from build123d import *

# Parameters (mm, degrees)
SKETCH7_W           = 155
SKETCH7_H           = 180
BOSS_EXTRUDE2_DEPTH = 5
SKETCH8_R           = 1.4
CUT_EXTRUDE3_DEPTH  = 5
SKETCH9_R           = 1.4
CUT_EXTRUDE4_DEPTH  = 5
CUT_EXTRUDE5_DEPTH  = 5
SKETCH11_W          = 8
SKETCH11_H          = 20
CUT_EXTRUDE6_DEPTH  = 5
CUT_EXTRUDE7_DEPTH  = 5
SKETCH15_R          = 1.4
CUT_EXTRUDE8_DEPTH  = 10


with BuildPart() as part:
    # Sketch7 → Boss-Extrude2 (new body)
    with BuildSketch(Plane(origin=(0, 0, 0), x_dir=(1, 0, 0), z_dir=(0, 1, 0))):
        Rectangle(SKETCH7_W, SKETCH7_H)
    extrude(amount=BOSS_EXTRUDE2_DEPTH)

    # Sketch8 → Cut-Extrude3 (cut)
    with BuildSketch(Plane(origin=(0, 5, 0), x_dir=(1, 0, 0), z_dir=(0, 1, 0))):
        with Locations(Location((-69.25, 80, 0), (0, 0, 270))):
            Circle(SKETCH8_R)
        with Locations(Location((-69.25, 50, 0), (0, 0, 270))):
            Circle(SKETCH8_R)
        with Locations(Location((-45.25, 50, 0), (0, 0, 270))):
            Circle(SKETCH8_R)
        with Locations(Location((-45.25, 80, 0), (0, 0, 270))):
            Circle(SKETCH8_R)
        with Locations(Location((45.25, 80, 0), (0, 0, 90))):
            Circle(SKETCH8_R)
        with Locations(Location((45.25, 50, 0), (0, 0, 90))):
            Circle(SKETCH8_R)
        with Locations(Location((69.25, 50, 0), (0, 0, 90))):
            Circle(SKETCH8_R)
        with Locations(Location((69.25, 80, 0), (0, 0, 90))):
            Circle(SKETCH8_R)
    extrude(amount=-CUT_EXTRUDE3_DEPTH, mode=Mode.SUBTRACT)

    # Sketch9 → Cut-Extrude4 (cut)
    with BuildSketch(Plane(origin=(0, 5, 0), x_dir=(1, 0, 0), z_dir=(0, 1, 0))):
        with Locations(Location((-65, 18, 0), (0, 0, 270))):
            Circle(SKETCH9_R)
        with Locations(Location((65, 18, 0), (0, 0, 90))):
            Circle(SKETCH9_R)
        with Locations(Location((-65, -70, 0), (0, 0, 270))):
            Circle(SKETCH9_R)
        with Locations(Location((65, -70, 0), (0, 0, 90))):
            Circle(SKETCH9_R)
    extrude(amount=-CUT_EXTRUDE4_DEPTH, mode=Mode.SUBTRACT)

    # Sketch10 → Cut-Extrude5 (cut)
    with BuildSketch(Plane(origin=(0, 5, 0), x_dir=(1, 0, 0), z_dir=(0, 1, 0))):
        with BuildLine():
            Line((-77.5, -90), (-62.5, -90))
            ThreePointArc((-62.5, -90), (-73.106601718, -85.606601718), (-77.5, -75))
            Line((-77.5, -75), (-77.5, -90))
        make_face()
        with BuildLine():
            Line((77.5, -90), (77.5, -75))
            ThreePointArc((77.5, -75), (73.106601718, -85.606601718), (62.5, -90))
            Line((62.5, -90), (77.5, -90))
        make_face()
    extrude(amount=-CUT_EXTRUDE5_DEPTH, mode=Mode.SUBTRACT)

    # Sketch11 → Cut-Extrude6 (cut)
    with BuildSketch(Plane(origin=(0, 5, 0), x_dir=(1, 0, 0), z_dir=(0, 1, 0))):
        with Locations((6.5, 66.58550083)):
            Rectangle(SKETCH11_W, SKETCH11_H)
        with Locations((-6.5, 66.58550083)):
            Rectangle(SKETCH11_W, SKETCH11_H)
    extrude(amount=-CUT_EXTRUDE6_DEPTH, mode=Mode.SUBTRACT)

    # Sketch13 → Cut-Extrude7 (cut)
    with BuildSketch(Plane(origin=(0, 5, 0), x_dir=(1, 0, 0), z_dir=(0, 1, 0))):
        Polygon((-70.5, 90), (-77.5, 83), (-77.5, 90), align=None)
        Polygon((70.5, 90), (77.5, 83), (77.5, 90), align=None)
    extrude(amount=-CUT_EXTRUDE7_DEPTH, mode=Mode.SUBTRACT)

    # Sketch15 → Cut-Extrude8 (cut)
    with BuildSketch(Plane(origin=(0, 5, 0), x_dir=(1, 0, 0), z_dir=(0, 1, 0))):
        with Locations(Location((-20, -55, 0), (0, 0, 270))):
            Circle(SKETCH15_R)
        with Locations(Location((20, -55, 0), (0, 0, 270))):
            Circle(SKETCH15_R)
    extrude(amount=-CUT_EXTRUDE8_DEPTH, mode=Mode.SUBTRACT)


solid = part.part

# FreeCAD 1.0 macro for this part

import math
import FreeCAD as App
import Part
import Sketcher

V = App.Vector

doc = App.newDocument("Part")
body = doc.addObject("PartDesign::Body", "Body")

sketch1 = body.newObject("Sketcher::SketchObject", "Sketch")
sketch1.AttachmentSupport = (doc.getObject("XZ_Plane"), [""])
sketch1.MapMode = "FlatFace"
sketch1.addGeometry([
    Part.LineSegment(V(-77.5, -90, 0), V(-77.5, 90, 0)),
    Part.LineSegment(V(-77.5, 90, 0), V(77.5, 90, 0)),
    Part.LineSegment(V(77.5, 90, 0), V(77.5, -90, 0)),
    Part.LineSegment(V(77.5, -90, 0), V(-77.5, -90, 0)),
], False)
sketch1.addConstraint([
    Sketcher.Constraint("Coincident", 0, 2, 1, 1),
    Sketcher.Constraint("Coincident", 1, 2, 2, 1),
    Sketcher.Constraint("Coincident", 2, 2, 3, 1),
    Sketcher.Constraint("Coincident", 3, 2, 0, 1),
    Sketcher.Constraint("Vertical", 0),
    Sketcher.Constraint("Horizontal", 1),
    Sketcher.Constraint("Vertical", 2),
    Sketcher.Constraint("Horizontal", 3),
    Sketcher.Constraint("Symmetric", 0, 2, 2, 2, -1, 1),
    Sketcher.Constraint("DistanceX", 1, 1, 1, 2, 155.0),
    Sketcher.Constraint("DistanceY", 0, 1, 0, 2, 180.0),
])
pad1 = body.newObject("PartDesign::Pad", "Pad")
pad1.Profile = sketch1
pad1.Length = 5
pad1.Reversed = True

sketch2 = body.newObject("Sketcher::SketchObject", "Sketch001")
sketch2.AttachmentSupport = (doc.getObject("XZ_Plane"), [""])
sketch2.MapMode = "FlatFace"
sketch2.AttachmentOffset = App.Placement(V(0, 0, -5), App.Rotation())
sketch2.addGeometry([
    Part.Circle(V(-69.25, -80, 0), V(0, 0, 1), 1.4),
    Part.Circle(V(-69.25, -50, 0), V(0, 0, 1), 1.4),
    Part.Circle(V(-45.25, -50, 0), V(0, 0, 1), 1.4),
    Part.Circle(V(-45.25, -80, 0), V(0, 0, 1), 1.4),
    Part.Circle(V(45.25, -80, 0), V(0, 0, 1), 1.4),
    Part.Circle(V(45.25, -50, 0), V(0, 0, 1), 1.4),
    Part.Circle(V(69.25, -50, 0), V(0, 0, 1), 1.4),
    Part.Circle(V(69.25, -80, 0), V(0, 0, 1), 1.4),
], False)
sketch2.addConstraint([
    Sketcher.Constraint("Equal", 0, 1),
    Sketcher.Constraint("Equal", 1, 2),
    Sketcher.Constraint("Equal", 2, 3),
    Sketcher.Constraint("Equal", 3, 4),
    Sketcher.Constraint("Equal", 4, 5),
    Sketcher.Constraint("Equal", 5, 6),
    Sketcher.Constraint("Equal", 6, 7),
    Sketcher.Constraint("Symmetric", 3, 3, 4, 3, -2),
    Sketcher.Constraint("Symmetric", 2, 3, 5, 3, -2),
    Sketcher.Constraint("Symmetric", 1, 3, 6, 3, -2),
    Sketcher.Constraint("Symmetric", 0, 3, 7, 3, -2),
    Sketcher.Constraint("Horizontal", 1, 3, 2, 3),
    Sketcher.Constraint("Horizontal", 0, 3, 3, 3),
    Sketcher.Constraint("Vertical", 0, 3, 1, 3),
    Sketcher.Constraint("Vertical", 2, 3, 3, 3),
    Sketcher.Constraint("Diameter", 0, 2.8),
    Sketcher.Constraint("DistanceY", 0, 3, -1, 1, 80.0),
    Sketcher.Constraint("DistanceY", 1, 3, -1, 1, 50.0),
    Sketcher.Constraint("DistanceX", 1, 3, 2, 3, 24.0),
    Sketcher.Constraint("DistanceX", 3, 3, 4, 3, 90.5),
])
pocket1 = body.newObject("PartDesign::Pocket", "Pocket")
pocket1.Profile = sketch2
pocket1.Length = 5
pocket1.Reversed = True

sketch3 = body.newObject("Sketcher::SketchObject", "Sketch002")
sketch3.AttachmentSupport = (doc.getObject("XZ_Plane"), [""])
sketch3.MapMode = "FlatFace"
sketch3.AttachmentOffset = App.Placement(V(0, 0, -5), App.Rotation())
sketch3.addGeometry([
    Part.Circle(V(-65, -18, 0), V(0, 0, 1), 1.4),
    Part.Circle(V(65, -18, 0), V(0, 0, 1), 1.4),
    Part.Circle(V(-65, 70, 0), V(0, 0, 1), 1.4),
    Part.Circle(V(65, 70, 0), V(0, 0, 1), 1.4),
], False)
sketch3.addConstraint([
    Sketcher.Constraint("Equal", 0, 1),
    Sketcher.Constraint("Equal", 1, 2),
    Sketcher.Constraint("Equal", 2, 3),
    Sketcher.Constraint("Symmetric", 0, 3, 1, 3, -2),
    Sketcher.Constraint("Symmetric", 2, 3, 3, 3, -2),
    Sketcher.Constraint("Vertical", 0, 3, 2, 3),
    Sketcher.Constraint("Diameter", 0, 2.8),
    Sketcher.Constraint("DistanceX", 0, 3, -1, 1, 65.0),
    Sketcher.Constraint("DistanceY", 0, 3, -1, 1, 18.0),
    Sketcher.Constraint("DistanceY", -1, 1, 2, 3, 70.0),
])
pocket2 = body.newObject("PartDesign::Pocket", "Pocket001")
pocket2.Profile = sketch3
pocket2.Length = 5
pocket2.Reversed = True

sketch4 = body.newObject("Sketcher::SketchObject", "Sketch003")
sketch4.AttachmentSupport = (doc.getObject("XZ_Plane"), [""])
sketch4.MapMode = "FlatFace"
sketch4.AttachmentOffset = App.Placement(V(0, 0, -5), App.Rotation())
sketch4.addGeometry([
    Part.LineSegment(V(-77.5, 90, 0), V(-62.5, 90, 0)),
    Part.ArcOfCircle(Part.Circle(V(-62.5, 75, 0), V(0, 0, 1), 15), math.radians(90), math.radians(180)),
    Part.LineSegment(V(-77.5, 75, 0), V(-77.5, 90, 0)),
    Part.LineSegment(V(77.5, 90, 0), V(77.5, 75, 0)),
    Part.ArcOfCircle(Part.Circle(V(62.5, 75, 0), V(0, 0, 1), 15), math.radians(0), math.radians(90)),
    Part.LineSegment(V(62.5, 90, 0), V(77.5, 90, 0)),
], False)
sketch4.addConstraint([
    Sketcher.Constraint("Tangent", 0, 2, 1, 1),
    Sketcher.Constraint("Tangent", 1, 2, 2, 1),
    Sketcher.Constraint("Coincident", 2, 2, 0, 1),
    Sketcher.Constraint("Tangent", 3, 2, 4, 1),
    Sketcher.Constraint("Tangent", 4, 2, 5, 1),
    Sketcher.Constraint("Coincident", 5, 2, 3, 1),
    Sketcher.Constraint("Horizontal", 0),
    Sketcher.Constraint("Vertical", 2),
    Sketcher.Constraint("Vertical", 3),
    Sketcher.Constraint("Horizontal", 5),
    Sketcher.Constraint("Equal", 1, 4),
    Sketcher.Constraint("Symmetric", 1, 3, 4, 3, -2),
    Sketcher.Constraint("Radius", 1, 15.0),
    Sketcher.Constraint("DistanceY", -1, 1, 1, 3, 75.0),
    Sketcher.Constraint("DistanceX", 1, 3, 4, 3, 125.0),
])
pocket3 = body.newObject("PartDesign::Pocket", "Pocket002")
pocket3.Profile = sketch4
pocket3.Length = 5
pocket3.Reversed = True

sketch5 = body.newObject("Sketcher::SketchObject", "Sketch004")
sketch5.AttachmentSupport = (doc.getObject("XZ_Plane"), [""])
sketch5.MapMode = "FlatFace"
sketch5.AttachmentOffset = App.Placement(V(0, 0, -5), App.Rotation())
sketch5.addGeometry([
    Part.LineSegment(V(2.5, -76.585501, 0), V(2.5, -56.585501, 0)),
    Part.LineSegment(V(2.5, -56.585501, 0), V(10.5, -56.585501, 0)),
    Part.LineSegment(V(10.5, -56.585501, 0), V(10.5, -76.585501, 0)),
    Part.LineSegment(V(10.5, -76.585501, 0), V(2.5, -76.585501, 0)),
    Part.LineSegment(V(-10.5, -76.585501, 0), V(-10.5, -56.585501, 0)),
    Part.LineSegment(V(-10.5, -56.585501, 0), V(-2.5, -56.585501, 0)),
    Part.LineSegment(V(-2.5, -56.585501, 0), V(-2.5, -76.585501, 0)),
    Part.LineSegment(V(-2.5, -76.585501, 0), V(-10.5, -76.585501, 0)),
], False)
sketch5.addConstraint([
    Sketcher.Constraint("Coincident", 0, 2, 1, 1),
    Sketcher.Constraint("Coincident", 1, 2, 2, 1),
    Sketcher.Constraint("Coincident", 2, 2, 3, 1),
    Sketcher.Constraint("Coincident", 3, 2, 0, 1),
    Sketcher.Constraint("Coincident", 4, 2, 5, 1),
    Sketcher.Constraint("Coincident", 5, 2, 6, 1),
    Sketcher.Constraint("Coincident", 6, 2, 7, 1),
    Sketcher.Constraint("Coincident", 7, 2, 4, 1),
    Sketcher.Constraint("Vertical", 0),
    Sketcher.Constraint("Horizontal", 1),
    Sketcher.Constraint("Vertical", 2),
    Sketcher.Constraint("Horizontal", 3),
    Sketcher.Constraint("Vertical", 4),
    Sketcher.Constraint("Horizontal", 5),
    Sketcher.Constraint("Vertical", 6),
    Sketcher.Constraint("Horizontal", 7),
    Sketcher.Constraint("Symmetric", 1, 2, 4, 2, -2),
    Sketcher.Constraint("Symmetric", 3, 2, 6, 2, -2),
    Sketcher.Constraint("DistanceX", 1, 1, 1, 2, 8.0),
    Sketcher.Constraint("DistanceY", 0, 1, 0, 2, 20.0),
    Sketcher.Constraint("DistanceX", 4, 2, 0, 2, 13.0),
    Sketcher.Constraint("DistanceY", 0, 2, -1, 1, 56.585501),
])
pocket4 = body.newObject("PartDesign::Pocket", "Pocket003")
pocket4.Profile = sketch5
pocket4.Length = 5
pocket4.Reversed = True

sketch6 = body.newObject("Sketcher::SketchObject", "Sketch005")
sketch6.AttachmentSupport = (doc.getObject("XZ_Plane"), [""])
sketch6.MapMode = "FlatFace"
sketch6.AttachmentOffset = App.Placement(V(0, 0, -5), App.Rotation())
sketch6.addGeometry([
    Part.LineSegment(V(-77.5, -83, 0), V(-70.5, -90, 0)),
    Part.LineSegment(V(-70.5, -90, 0), V(-77.5, -90, 0)),
    Part.LineSegment(V(-77.5, -90, 0), V(-77.5, -83, 0)),
    Part.LineSegment(V(70.5, -90, 0), V(77.5, -83, 0)),
    Part.LineSegment(V(77.5, -83, 0), V(77.5, -90, 0)),
    Part.LineSegment(V(77.5, -90, 0), V(70.5, -90, 0)),
], False)
sketch6.addConstraint([
    Sketcher.Constraint("Coincident", 0, 2, 1, 1),
    Sketcher.Constraint("Coincident", 1, 2, 2, 1),
    Sketcher.Constraint("Coincident", 2, 2, 0, 1),
    Sketcher.Constraint("Coincident", 3, 2, 4, 1),
    Sketcher.Constraint("Coincident", 4, 2, 5, 1),
    Sketcher.Constraint("Coincident", 5, 2, 3, 1),
    Sketcher.Constraint("Horizontal", 1),
    Sketcher.Constraint("Vertical", 2),
    Sketcher.Constraint("Vertical", 4),
    Sketcher.Constraint("Horizontal", 5),
    Sketcher.Constraint("Symmetric", 2, 2, 3, 2, -2),
    Sketcher.Constraint("Symmetric", 0, 2, 5, 2, -2),
    Sketcher.Constraint("Perpendicular", 0, 3),
    Sketcher.Constraint("DistanceX", 1, 2, 1, 1, 7.0),
    Sketcher.Constraint("DistanceY", 0, 2, -1, 1, 90.0),
    Sketcher.Constraint("DistanceX", 0, 2, 3, 2, 148.0),
])
pocket5 = body.newObject("PartDesign::Pocket", "Pocket004")
pocket5.Profile = sketch6
pocket5.Length = 5
pocket5.Reversed = True

sketch7 = body.newObject("Sketcher::SketchObject", "Sketch006")
sketch7.AttachmentSupport = (doc.getObject("XZ_Plane"), [""])
sketch7.MapMode = "FlatFace"
sketch7.AttachmentOffset = App.Placement(V(0, 0, -5), App.Rotation())
sketch7.addGeometry([
    Part.Circle(V(-20, 55, 0), V(0, 0, 1), 1.4),
    Part.Circle(V(20, 55, 0), V(0, 0, 1), 1.4),
], False)
sketch7.addConstraint([
    Sketcher.Constraint("Equal", 0, 1),
    Sketcher.Constraint("Symmetric", 0, 3, 1, 3, -2),
    Sketcher.Constraint("Diameter", 0, 2.8),
    Sketcher.Constraint("DistanceX", 0, 3, -1, 1, 20.0),
    Sketcher.Constraint("DistanceY", -1, 1, 0, 3, 55.0),
])
pocket6 = body.newObject("PartDesign::Pocket", "Pocket005")
pocket6.Profile = sketch7
pocket6.Length = 10
pocket6.Reversed = True

doc.recompute()
